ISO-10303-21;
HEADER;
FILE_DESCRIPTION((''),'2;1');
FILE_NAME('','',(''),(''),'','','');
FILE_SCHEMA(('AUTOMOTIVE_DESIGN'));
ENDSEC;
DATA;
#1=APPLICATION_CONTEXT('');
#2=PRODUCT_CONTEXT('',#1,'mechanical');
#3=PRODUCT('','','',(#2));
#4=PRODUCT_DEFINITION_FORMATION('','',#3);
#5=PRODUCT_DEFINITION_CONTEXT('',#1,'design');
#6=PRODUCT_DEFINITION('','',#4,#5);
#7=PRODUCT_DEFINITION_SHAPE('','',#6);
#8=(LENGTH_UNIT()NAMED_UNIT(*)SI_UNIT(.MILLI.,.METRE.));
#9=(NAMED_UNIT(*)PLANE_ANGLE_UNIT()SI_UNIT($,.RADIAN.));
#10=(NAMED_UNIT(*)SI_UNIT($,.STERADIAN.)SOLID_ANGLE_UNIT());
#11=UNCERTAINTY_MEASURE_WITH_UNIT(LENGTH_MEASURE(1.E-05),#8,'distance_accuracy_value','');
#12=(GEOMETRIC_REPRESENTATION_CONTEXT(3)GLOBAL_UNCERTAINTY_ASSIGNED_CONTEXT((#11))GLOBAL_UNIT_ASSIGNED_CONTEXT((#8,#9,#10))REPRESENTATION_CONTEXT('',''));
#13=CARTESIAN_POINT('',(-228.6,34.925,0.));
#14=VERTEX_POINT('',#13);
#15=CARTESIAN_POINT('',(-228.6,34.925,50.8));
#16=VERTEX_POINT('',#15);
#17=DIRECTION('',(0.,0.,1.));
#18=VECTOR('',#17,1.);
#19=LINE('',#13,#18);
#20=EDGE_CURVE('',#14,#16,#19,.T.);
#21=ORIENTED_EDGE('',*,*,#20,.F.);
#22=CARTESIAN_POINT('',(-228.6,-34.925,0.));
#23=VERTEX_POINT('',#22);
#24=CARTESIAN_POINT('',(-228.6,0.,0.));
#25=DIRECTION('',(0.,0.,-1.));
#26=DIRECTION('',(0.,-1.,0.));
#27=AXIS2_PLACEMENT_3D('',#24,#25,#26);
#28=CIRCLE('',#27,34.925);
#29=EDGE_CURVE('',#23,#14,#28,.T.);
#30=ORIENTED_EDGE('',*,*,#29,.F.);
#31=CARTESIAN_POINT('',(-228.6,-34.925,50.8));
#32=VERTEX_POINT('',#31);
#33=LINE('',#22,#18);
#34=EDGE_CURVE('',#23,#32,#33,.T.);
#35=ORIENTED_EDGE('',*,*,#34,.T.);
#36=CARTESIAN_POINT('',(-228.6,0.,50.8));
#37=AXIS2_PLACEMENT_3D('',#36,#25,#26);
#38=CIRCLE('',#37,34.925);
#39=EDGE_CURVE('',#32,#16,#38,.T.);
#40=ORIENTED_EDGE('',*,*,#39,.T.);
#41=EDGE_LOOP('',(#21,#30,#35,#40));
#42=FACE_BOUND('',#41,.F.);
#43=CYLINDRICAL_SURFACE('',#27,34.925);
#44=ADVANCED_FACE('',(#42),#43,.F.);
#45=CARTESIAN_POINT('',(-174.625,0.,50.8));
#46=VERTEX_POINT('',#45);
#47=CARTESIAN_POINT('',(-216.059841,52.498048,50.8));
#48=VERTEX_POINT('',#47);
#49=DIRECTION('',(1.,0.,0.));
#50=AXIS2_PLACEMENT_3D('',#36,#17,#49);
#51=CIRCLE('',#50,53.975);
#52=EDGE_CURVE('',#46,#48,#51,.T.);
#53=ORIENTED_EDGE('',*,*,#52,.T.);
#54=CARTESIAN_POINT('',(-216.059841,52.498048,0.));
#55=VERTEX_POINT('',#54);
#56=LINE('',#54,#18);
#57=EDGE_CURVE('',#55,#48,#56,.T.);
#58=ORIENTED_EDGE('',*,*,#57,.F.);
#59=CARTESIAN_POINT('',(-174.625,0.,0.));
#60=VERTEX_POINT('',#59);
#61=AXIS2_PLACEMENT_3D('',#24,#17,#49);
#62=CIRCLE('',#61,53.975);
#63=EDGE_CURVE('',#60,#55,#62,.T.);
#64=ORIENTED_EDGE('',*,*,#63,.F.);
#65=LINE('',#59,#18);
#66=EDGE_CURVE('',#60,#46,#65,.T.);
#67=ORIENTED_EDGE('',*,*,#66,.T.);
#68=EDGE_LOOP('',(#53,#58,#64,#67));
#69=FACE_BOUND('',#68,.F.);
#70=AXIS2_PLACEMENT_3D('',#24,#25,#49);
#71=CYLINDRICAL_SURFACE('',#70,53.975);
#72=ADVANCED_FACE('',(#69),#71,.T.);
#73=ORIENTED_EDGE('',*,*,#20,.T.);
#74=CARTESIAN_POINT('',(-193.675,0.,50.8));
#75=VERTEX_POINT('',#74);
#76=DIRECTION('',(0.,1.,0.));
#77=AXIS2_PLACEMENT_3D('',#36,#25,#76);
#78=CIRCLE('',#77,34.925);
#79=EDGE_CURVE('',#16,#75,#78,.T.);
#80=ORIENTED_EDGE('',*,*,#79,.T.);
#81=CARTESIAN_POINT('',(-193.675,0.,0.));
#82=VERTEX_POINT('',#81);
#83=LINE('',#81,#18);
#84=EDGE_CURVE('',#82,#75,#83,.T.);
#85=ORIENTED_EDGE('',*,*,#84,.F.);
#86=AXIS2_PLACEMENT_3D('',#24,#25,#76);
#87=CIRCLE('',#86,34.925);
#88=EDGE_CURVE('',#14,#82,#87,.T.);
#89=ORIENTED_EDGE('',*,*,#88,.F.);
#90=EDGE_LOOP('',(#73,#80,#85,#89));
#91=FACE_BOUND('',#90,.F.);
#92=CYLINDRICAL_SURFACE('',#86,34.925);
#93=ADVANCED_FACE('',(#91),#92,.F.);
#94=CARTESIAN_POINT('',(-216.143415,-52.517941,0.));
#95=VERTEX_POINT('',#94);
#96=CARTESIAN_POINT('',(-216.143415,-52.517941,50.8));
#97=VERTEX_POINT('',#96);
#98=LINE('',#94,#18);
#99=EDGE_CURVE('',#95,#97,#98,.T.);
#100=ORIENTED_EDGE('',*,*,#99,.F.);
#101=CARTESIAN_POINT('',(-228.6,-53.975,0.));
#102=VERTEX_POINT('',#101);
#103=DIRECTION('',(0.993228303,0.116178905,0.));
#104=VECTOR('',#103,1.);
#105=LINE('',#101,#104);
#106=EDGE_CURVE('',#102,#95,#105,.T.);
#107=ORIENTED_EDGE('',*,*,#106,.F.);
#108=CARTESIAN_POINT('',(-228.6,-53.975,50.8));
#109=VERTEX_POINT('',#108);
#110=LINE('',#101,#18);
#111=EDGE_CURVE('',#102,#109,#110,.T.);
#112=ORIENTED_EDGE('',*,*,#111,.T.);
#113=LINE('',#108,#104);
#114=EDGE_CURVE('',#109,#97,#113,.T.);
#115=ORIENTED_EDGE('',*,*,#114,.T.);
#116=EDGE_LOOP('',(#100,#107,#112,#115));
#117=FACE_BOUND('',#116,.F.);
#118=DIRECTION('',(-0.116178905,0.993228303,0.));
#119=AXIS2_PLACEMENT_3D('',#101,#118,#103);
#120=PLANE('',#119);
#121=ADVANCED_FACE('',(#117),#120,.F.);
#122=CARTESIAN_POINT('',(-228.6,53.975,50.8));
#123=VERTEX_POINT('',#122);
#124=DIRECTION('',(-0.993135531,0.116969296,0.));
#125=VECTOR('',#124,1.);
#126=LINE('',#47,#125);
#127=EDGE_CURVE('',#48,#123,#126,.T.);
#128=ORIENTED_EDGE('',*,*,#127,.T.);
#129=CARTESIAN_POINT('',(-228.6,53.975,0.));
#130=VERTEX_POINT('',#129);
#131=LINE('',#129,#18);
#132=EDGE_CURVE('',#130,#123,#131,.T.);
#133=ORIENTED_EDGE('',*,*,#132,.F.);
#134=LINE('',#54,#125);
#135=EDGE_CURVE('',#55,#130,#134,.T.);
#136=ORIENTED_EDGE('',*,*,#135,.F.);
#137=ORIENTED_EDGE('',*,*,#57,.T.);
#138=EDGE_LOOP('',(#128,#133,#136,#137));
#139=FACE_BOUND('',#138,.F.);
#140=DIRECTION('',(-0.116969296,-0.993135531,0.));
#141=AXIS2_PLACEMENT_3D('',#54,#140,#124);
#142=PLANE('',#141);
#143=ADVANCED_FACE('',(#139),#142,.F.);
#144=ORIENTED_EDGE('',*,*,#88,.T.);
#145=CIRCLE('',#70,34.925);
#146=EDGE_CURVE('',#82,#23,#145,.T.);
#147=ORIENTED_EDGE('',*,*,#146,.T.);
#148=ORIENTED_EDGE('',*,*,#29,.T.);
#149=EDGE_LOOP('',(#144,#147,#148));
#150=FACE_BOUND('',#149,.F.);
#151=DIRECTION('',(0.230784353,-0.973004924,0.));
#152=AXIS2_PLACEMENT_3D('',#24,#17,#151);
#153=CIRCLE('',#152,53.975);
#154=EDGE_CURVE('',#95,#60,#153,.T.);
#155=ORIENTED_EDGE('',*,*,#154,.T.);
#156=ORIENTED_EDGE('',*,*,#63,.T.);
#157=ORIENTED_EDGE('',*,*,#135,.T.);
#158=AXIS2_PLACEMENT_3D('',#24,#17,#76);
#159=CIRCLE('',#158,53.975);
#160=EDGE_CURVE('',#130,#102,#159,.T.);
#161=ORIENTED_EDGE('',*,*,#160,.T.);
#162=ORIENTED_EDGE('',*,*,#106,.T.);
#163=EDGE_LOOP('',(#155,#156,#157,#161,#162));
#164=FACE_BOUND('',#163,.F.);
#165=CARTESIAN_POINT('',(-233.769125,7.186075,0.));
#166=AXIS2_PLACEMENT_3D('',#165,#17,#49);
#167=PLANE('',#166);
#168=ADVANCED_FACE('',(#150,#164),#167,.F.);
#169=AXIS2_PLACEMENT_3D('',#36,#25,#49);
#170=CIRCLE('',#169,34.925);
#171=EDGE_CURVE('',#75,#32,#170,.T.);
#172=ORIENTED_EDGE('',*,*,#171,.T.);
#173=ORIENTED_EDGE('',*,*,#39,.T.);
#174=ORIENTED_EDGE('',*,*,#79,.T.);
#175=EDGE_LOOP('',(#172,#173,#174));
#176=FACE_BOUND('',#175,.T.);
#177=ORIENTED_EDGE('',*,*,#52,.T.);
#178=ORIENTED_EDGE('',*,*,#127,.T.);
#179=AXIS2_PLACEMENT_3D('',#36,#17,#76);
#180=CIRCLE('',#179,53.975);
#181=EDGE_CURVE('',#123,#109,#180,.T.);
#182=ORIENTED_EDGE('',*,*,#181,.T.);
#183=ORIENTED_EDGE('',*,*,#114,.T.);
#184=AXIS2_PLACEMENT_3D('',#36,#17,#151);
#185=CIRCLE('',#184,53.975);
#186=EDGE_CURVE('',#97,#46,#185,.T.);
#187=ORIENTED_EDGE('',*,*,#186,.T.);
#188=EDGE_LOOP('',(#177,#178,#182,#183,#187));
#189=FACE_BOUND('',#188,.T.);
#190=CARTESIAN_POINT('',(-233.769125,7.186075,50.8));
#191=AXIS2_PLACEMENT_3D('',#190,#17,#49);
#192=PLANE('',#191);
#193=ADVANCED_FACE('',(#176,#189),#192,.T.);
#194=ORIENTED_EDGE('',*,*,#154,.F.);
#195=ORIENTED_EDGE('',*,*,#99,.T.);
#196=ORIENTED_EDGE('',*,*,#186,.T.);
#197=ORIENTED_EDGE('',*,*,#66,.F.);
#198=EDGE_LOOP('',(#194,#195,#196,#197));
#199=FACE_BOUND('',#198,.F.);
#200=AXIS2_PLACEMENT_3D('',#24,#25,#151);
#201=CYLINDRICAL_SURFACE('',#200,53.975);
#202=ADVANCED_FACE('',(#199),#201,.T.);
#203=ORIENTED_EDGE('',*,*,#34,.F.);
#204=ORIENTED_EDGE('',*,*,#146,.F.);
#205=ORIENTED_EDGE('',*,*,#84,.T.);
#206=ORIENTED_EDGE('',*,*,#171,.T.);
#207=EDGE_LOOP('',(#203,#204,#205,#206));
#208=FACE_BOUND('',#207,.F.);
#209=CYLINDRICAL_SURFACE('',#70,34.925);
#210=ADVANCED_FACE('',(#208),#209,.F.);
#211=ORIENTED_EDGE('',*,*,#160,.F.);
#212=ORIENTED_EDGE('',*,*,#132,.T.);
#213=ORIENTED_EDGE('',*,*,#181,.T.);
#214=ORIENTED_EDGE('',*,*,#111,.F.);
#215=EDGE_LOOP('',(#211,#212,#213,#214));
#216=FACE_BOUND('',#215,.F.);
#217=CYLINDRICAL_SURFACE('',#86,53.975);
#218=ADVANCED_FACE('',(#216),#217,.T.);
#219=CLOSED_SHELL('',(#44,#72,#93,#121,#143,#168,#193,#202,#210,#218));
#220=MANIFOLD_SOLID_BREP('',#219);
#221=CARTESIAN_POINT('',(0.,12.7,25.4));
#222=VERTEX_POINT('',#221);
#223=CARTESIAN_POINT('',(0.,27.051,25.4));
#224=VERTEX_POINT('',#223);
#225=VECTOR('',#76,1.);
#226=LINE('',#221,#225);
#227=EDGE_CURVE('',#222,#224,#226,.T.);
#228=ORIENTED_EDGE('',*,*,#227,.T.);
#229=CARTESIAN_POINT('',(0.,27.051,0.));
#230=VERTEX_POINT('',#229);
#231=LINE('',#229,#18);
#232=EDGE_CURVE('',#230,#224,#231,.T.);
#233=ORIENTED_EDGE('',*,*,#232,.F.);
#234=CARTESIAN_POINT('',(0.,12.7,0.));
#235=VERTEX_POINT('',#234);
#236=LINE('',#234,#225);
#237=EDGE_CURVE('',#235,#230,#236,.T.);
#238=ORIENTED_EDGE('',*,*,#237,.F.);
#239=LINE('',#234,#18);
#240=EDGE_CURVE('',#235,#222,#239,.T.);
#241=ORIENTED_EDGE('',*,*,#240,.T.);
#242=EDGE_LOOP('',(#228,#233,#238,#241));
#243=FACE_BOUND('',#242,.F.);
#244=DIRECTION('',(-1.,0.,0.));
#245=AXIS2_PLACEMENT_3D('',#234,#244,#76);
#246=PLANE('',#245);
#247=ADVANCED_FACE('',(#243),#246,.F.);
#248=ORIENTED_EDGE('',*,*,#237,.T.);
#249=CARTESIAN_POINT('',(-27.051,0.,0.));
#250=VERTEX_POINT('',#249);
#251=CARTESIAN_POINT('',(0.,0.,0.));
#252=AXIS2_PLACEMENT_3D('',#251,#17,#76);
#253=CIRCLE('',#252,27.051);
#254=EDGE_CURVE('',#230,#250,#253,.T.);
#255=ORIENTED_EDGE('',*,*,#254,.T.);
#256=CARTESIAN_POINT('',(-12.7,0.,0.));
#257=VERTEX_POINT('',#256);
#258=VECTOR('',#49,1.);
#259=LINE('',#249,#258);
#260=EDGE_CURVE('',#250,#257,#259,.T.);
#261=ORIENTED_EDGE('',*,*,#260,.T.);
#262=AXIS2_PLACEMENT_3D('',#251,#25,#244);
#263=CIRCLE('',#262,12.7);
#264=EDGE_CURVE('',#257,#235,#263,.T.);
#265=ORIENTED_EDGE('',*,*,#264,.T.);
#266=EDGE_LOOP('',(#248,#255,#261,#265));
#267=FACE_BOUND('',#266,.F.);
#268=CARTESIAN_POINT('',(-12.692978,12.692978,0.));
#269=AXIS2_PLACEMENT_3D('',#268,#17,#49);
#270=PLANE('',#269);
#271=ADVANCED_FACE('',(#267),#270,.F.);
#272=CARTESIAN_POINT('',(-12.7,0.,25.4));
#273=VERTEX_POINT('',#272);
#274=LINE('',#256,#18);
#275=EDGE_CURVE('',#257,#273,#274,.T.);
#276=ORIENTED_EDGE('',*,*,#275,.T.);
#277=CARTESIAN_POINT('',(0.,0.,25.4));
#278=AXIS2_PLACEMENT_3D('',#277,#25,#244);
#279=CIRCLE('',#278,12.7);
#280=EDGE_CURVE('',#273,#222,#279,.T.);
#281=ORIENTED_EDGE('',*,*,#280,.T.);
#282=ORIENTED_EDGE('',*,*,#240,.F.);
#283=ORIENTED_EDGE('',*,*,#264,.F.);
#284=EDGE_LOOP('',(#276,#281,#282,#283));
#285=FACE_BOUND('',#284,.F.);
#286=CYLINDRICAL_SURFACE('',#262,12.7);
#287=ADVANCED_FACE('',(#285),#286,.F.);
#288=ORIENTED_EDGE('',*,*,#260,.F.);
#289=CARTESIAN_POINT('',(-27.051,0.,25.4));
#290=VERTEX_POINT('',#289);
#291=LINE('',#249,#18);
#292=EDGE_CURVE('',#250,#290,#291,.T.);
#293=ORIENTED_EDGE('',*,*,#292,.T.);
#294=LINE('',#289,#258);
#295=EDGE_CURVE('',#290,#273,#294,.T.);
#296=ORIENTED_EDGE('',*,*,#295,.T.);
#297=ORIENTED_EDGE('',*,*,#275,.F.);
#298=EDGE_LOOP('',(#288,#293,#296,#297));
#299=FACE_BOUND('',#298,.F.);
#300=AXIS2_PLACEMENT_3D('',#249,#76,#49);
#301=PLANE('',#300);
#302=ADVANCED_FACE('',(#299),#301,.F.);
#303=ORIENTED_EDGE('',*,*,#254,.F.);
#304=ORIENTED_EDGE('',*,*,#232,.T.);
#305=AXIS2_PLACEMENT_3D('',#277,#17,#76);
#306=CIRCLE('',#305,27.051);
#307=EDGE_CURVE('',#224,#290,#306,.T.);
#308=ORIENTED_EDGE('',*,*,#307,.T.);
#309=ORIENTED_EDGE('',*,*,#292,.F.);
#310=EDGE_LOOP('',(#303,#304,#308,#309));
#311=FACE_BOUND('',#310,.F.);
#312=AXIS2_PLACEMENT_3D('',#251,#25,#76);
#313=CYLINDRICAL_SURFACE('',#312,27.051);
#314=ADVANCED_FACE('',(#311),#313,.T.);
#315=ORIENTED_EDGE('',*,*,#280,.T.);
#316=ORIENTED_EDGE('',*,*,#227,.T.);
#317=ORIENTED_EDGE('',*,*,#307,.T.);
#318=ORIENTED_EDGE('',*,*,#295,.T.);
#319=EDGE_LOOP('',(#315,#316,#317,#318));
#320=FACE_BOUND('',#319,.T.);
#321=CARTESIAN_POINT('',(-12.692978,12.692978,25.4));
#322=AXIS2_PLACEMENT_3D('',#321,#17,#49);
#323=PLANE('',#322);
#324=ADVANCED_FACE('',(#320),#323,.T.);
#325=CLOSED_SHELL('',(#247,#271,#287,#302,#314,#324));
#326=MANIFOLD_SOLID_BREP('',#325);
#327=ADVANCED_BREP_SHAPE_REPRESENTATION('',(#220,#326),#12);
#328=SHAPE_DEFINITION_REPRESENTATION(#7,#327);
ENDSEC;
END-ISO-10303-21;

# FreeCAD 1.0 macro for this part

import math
import FreeCAD as App
import Part
import Sketcher
from FreeCAD import Vector
Q = App.Units.Quantity

doc = App.newDocument("Part")
params = doc.addObject("Spreadsheet::Sheet", "Params")
for row, (alias, value) in enumerate([
    ("sketch1_radius", "2.125 in"),
    ("sketch1_radius2", "1.375 in"),
    ("pad1_length", "2 in"),
    ("sketch2_radius", "0.5 in"),
    ("sketch2_radius2", "1.065 in"),
    ("pad2_length", "1 in"),
], start=1):
    params.set(f"A{row}", alias)
    params.set(f"B{row}", "=" + value)
    params.setAlias(f"B{row}", alias)

body = doc.addObject("PartDesign::Body", "Body")

sketch1 = body.newObject("Sketcher::SketchObject", "Sketch")
sketch1.AttachmentSupport = (doc.getObject("XY_Plane"), [""])
sketch1.MapMode = "FlatFace"
sketch1.addGeometry(Part.ArcOfCircle(Part.Circle(Vector(-229, 0, 0), Vector(0, 0, 1), 54), math.radians(0), math.radians(77)), False)
sketch1.addGeometry(Part.LineSegment(Vector(-216, 52, 0), Vector(-229, 54, 0)), False)
sketch1.addGeometry(Part.ArcOfCircle(Part.Circle(Vector(-229, 0, 0), Vector(0, 0, 1), 54), math.radians(90), math.radians(270)), False)
sketch1.addGeometry(Part.LineSegment(Vector(-229, -54, 0), Vector(-216, -53, 0)), False)
sketch1.addGeometry(Part.ArcOfCircle(Part.Circle(Vector(-229, 0, 0), Vector(0, 0, 1), 54), math.radians(-77), math.radians(0)), False)
sketch1.addGeometry(Part.ArcOfCircle(Part.Circle(Vector(-229, 0, 0), Vector(0, 0, 1), 35), math.radians(0), math.radians(90)), False)
sketch1.addGeometry(Part.ArcOfCircle(Part.Circle(Vector(-229, 0, 0), Vector(0, 0, 1), 35), math.radians(-90), math.radians(0)), False)
sketch1.addGeometry(Part.ArcOfCircle(Part.Circle(Vector(-229, 0, 0), Vector(0, 0, 1), 35), math.radians(90), math.radians(270)), False)
sketch1.addConstraint(Sketcher.Constraint("Coincident", 0, 2, 1, 1))
sketch1.addConstraint(Sketcher.Constraint("Coincident", 1, 2, 2, 1))
sketch1.addConstraint(Sketcher.Constraint("Coincident", 2, 2, 3, 1))
sketch1.addConstraint(Sketcher.Constraint("Coincident", 3, 2, 4, 1))
sketch1.addConstraint(Sketcher.Constraint("Tangent", 4, 2, 0, 1))
sketch1.addConstraint(Sketcher.Constraint("Tangent", 5, 1, 6, 2))
sketch1.addConstraint(Sketcher.Constraint("Tangent", 6, 1, 7, 2))
sketch1.addConstraint(Sketcher.Constraint("Tangent", 7, 1, 5, 2))
sketch1.addConstraint(Sketcher.Constraint("Coincident", 2, 3, 0, 3))
sketch1.addConstraint(Sketcher.Constraint("Coincident", 5, 3, 0, 3))
sketch1.addConstraint(Sketcher.Constraint("Equal", 0, 2))
sketch1.addConstraint(Sketcher.Constraint("Equal", 2, 4))
sketch1.addConstraint(Sketcher.Constraint("Symmetric", 1, 2, 2, 2, -1))
sketch1.addConstraint(Sketcher.Constraint("PointOnObject", 4, 2, -1))
sketch1.addConstraint(Sketcher.Constraint("PointOnObject", 5, 1, -1))
sketch1.addConstraint(Sketcher.Constraint("Vertical", 7, 3, 1, 2))
sketch1.addConstraint(Sketcher.Constraint("Vertical", 2, 2, 6, 1))
sketch1.addConstraint(Sketcher.Constraint("Vertical", 6, 1, 7, 1))
sketch1.addConstraint(Sketcher.Constraint("DistanceX", 0, 3, -1, 1, Q("9 in")))
sketch1.addConstraint(Sketcher.Constraint("Radius", 0, Q("2.125 in")))
sketch1.addConstraint(Sketcher.Constraint("Radius", 5, Q("1.375 in")))
sketch1.addConstraint(Sketcher.Constraint("DistanceX", 0, 2, -1, 1, Q("216.059841 mm")))
sketch1.addConstraint(Sketcher.Constraint("DistanceY", 3, 2, -1, 1, Q("52.517941 mm")))
sketch1.setExpression("Constraints[19]", "Params.sketch1_radius")
sketch1.setExpression("Constraints[20]", "Params.sketch1_radius2")
pad1 = body.newObject("PartDesign::Pad", "Pad")
pad1.Profile = sketch1
pad1.setExpression("Length", "Params.pad1_length")
body2 = doc.addObject("PartDesign::Body", "Body001")

sketch2 = body2.newObject("Sketcher::SketchObject", "Sketch001")
sketch2.AttachmentSupport = (doc.getObject("XY_Plane001"), [""])
sketch2.MapMode = "FlatFace"
sketch2.addGeometry(Part.LineSegment(Vector(0, 13, 0), Vector(0, 27, 0)), False)
sketch2.addGeometry(Part.ArcOfCircle(Part.Circle(Vector(0, 0, 0), Vector(0, 0, 1), 27), math.radians(90), math.radians(180)), False)
sketch2.addGeometry(Part.LineSegment(Vector(-27, 0, 0), Vector(-13, 0, 0)), False)
sketch2.addGeometry(Part.ArcOfCircle(Part.Circle(Vector(0, 0, 0), Vector(0, 0, 1), 13), math.radians(90), math.radians(180)), False)
sketch2.addConstraint(Sketcher.Constraint("Coincident", 0, 2, 1, 1))
sketch2.addConstraint(Sketcher.Constraint("Coincident", 1, 2, 2, 1))
sketch2.addConstraint(Sketcher.Constraint("Coincident", 2, 2, 3, 2))
sketch2.addConstraint(Sketcher.Constraint("Coincident", 3, 1, 0, 1))
sketch2.addConstraint(Sketcher.Constraint("Vertical", 0))
sketch2.addConstraint(Sketcher.Constraint("Horizontal", 2))
sketch2.addConstraint(Sketcher.Constraint("Coincident", 1, 3, -1, 1))
sketch2.addConstraint(Sketcher.Constraint("Coincident", 3, 3, -1, 1))
sketch2.addConstraint(Sketcher.Constraint("PointOnObject", 0, 2, -2))
sketch2.addConstraint(Sketcher.Constraint("PointOnObject", 1, 2, -1))
sketch2.addConstraint(Sketcher.Constraint("Radius", 3, Q("0.5 in")))
sketch2.addConstraint(Sketcher.Constraint("Radius", 1, Q("1.065 in")))
sketch2.setExpression("Constraints[10]", "Params.sketch2_radius")
sketch2.setExpression("Constraints[11]", "Params.sketch2_radius2")
pad2 = body2.newObject("PartDesign::Pad", "Pad001")
pad2.Profile = sketch2
pad2.setExpression("Length", "Params.pad2_length")

doc.recompute()
